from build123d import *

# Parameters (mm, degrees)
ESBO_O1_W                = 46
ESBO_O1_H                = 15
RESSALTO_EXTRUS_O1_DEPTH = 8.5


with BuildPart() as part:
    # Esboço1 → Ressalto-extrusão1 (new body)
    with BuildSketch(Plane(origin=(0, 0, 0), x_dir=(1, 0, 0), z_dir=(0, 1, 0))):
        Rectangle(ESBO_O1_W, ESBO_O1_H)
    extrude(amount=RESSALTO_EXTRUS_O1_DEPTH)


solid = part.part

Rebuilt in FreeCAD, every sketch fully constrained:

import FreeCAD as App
import Part
import Sketcher
from FreeCAD import Vector

doc = App.newDocument("Part")
body = doc.addObject("PartDesign::Body", "Body")

# Sketch on XZ plane
sketch1 = body.newObject("Sketcher::SketchObject", "Sketch")
sketch1.AttachmentSupport = (doc.getObject("XZ_Plane"), [""])
sketch1.MapMode = "FlatFace"
sketch1.addGeometry([
    Part.LineSegment(Vector(-23, -8, 0), Vector(-23, 8, 0)),
    Part.LineSegment(Vector(-23, 8, 0), Vector(23, 8, 0)),
    Part.LineSegment(Vector(23, 8, 0), Vector(23, -8, 0)),
    Part.LineSegment(Vector(23, -8, 0), Vector(-23, -8, 0)),
], False)
sketch1.addConstraint([
    Sketcher.Constraint("Coincident", 0, 2, 1, 1),
    Sketcher.Constraint("Coincident", 1, 2, 2, 1),
    Sketcher.Constraint("Coincident", 2, 2, 3, 1),
    Sketcher.Constraint("Coincident", 3, 2, 0, 1),
    Sketcher.Constraint("Vertical", 0),
    Sketcher.Constraint("Horizontal", 1),
    Sketcher.Constraint("Vertical", 2),
    Sketcher.Constraint("Horizontal", 3),
    Sketcher.Constraint("Symmetric", 0, 2, 2, 2, -1, 1),
    Sketcher.Constraint("DistanceX", 1, 1, 1, 2, 46.0),
    Sketcher.Constraint("DistanceY", 0, 1, 0, 2, 15.0),
])
pad1 = body.newObject("PartDesign::Pad", "Pad")
pad1.Profile = sketch1
pad1.Length = 8.5
pad1.Reversed = True

doc.recompute()
